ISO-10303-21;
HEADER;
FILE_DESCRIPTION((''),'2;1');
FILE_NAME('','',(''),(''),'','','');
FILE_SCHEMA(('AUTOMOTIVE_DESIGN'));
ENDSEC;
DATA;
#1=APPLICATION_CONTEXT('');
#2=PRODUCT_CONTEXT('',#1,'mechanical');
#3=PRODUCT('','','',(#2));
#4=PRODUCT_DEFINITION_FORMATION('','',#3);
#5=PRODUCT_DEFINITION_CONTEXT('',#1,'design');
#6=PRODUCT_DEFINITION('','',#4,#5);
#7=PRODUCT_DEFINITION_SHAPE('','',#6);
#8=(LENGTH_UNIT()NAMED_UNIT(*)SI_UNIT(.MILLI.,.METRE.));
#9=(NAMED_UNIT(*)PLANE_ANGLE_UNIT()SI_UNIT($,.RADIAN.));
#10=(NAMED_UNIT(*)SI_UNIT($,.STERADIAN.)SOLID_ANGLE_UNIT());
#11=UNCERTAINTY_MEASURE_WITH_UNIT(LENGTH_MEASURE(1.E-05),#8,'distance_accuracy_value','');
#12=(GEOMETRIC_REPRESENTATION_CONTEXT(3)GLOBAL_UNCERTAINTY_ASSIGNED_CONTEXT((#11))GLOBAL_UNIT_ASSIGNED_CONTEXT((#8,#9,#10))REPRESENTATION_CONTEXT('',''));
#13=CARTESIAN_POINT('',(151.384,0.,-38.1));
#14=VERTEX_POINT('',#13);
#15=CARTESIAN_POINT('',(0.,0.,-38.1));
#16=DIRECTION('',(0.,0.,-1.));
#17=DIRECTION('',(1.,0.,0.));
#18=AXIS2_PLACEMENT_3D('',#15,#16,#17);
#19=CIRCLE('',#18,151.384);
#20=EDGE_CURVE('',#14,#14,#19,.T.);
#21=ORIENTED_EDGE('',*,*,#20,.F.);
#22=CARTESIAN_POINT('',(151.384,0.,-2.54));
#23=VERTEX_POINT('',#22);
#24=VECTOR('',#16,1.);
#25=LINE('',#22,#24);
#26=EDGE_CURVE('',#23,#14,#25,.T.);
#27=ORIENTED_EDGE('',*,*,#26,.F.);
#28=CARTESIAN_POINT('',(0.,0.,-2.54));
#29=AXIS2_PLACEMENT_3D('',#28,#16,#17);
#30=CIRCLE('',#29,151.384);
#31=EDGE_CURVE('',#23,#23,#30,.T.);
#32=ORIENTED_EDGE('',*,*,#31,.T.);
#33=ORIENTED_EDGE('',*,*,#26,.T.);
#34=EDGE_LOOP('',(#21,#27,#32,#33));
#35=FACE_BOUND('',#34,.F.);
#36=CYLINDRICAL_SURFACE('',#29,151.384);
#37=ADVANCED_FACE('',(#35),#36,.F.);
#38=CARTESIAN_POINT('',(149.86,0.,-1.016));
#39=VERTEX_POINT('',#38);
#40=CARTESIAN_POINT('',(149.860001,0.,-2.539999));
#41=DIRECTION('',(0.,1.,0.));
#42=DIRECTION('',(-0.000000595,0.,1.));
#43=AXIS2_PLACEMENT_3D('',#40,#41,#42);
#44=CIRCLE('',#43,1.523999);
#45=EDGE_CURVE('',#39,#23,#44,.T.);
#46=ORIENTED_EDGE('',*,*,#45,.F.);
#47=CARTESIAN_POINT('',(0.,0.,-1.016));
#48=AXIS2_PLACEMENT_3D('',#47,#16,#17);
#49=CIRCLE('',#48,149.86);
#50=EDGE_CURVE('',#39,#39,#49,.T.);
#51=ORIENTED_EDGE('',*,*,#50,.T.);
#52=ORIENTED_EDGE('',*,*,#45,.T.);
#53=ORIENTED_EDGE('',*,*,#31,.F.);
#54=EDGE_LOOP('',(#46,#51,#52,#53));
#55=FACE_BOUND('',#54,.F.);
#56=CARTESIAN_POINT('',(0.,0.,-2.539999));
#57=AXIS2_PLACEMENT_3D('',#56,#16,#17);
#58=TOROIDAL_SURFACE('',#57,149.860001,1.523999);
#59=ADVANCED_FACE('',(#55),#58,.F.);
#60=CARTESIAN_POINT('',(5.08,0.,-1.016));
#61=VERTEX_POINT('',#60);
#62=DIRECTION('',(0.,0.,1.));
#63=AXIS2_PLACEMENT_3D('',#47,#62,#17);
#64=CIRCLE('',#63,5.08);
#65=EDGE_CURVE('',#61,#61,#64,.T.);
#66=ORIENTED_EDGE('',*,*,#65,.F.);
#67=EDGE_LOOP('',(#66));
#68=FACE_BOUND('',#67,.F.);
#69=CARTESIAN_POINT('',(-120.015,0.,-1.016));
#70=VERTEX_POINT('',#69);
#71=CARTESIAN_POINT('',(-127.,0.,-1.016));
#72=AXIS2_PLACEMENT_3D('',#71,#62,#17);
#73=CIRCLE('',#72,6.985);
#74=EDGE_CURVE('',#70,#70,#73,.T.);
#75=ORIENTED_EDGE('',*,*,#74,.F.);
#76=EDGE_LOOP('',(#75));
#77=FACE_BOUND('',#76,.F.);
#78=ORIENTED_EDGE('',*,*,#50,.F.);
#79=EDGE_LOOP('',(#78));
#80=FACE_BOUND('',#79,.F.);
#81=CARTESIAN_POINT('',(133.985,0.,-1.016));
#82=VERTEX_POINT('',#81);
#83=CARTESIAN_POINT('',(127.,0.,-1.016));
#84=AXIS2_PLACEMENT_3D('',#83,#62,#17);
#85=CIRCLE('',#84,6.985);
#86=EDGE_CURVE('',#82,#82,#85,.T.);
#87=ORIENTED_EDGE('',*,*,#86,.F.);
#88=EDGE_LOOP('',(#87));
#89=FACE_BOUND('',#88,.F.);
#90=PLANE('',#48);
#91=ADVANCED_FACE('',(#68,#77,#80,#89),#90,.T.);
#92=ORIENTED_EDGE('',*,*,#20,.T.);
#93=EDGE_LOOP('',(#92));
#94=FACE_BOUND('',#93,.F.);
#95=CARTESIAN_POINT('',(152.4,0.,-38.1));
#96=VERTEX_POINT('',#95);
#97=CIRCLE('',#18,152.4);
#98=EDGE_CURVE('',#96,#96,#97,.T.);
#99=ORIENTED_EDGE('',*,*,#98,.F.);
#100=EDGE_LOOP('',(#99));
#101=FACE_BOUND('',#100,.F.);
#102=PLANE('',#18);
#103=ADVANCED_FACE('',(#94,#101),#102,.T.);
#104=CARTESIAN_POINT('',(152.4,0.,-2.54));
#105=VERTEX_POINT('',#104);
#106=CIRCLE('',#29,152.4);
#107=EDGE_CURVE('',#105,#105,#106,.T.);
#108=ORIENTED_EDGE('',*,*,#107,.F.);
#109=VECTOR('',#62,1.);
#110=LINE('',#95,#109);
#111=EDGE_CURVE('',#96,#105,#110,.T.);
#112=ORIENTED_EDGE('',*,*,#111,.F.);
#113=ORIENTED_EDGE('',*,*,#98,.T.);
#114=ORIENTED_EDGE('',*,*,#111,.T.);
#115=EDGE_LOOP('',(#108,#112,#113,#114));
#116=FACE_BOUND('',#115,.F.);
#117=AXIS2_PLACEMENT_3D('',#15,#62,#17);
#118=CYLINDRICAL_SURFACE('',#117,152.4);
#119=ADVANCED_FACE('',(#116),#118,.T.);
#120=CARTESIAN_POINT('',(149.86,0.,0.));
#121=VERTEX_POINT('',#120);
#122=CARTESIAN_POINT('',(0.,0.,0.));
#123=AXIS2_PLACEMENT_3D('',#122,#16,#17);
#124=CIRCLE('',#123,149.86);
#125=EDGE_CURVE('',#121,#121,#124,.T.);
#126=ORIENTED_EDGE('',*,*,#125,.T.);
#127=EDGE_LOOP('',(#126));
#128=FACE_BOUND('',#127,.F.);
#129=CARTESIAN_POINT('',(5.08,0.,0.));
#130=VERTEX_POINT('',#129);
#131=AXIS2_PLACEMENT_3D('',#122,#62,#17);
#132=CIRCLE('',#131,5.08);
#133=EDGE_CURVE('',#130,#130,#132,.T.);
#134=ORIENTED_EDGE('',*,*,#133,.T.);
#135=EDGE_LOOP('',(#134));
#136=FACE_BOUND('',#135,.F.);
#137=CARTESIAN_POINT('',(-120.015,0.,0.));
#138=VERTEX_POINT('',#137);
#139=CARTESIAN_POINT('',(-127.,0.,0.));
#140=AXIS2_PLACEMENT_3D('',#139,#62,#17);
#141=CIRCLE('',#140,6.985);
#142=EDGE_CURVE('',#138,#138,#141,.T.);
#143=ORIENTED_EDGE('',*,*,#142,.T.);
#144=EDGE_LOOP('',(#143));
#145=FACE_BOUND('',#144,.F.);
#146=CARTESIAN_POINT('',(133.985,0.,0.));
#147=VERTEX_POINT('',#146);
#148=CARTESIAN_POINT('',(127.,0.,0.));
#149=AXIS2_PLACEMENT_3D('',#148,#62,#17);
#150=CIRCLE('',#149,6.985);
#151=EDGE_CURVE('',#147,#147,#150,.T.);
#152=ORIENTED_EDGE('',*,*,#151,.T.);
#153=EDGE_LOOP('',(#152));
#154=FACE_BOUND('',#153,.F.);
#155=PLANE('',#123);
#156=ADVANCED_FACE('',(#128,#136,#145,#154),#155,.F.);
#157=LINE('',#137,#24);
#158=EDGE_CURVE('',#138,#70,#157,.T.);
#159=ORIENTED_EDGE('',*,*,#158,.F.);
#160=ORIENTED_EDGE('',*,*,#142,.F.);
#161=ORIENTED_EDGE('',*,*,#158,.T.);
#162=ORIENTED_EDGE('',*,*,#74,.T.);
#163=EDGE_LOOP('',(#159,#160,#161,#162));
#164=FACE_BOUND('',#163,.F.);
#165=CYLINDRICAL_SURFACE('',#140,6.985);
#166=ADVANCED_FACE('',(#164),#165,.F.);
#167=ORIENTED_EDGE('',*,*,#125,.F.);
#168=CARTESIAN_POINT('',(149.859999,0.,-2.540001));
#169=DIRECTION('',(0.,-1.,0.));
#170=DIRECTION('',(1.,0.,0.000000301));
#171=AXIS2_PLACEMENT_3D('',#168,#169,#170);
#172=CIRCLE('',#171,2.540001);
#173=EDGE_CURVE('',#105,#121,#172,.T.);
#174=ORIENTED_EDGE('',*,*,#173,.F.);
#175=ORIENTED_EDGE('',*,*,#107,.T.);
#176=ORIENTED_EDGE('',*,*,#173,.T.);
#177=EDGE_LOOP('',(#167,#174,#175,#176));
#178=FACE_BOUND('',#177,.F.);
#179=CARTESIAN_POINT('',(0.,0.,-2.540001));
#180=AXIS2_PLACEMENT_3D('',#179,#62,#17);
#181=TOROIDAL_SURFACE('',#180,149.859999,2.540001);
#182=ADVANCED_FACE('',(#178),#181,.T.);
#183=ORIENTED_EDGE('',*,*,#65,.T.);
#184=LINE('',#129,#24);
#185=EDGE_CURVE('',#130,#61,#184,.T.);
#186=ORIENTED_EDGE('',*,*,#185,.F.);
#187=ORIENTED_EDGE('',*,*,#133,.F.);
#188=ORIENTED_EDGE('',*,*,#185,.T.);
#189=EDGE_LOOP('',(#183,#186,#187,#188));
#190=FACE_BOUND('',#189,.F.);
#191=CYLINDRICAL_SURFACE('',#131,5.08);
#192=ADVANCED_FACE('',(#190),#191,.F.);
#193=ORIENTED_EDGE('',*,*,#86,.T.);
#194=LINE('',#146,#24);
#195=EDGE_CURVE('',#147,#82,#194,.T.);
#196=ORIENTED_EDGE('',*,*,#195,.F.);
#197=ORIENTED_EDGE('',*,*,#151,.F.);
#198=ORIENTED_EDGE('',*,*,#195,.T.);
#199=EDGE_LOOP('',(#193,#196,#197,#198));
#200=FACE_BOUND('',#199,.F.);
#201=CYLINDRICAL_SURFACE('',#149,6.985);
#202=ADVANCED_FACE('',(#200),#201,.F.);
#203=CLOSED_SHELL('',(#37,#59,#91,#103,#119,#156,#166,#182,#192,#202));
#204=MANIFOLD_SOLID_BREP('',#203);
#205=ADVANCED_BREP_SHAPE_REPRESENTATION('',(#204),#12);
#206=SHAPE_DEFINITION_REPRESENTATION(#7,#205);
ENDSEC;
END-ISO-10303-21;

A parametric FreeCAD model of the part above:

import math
import FreeCAD as App
import Part
import Sketcher

V = App.Vector
Q = App.Units.Quantity

doc = App.newDocument("Part")
body = doc.addObject("PartDesign::Body", "Body")

# Sketch on XZ plane
sketch1 = body.newObject("Sketcher::SketchObject", "Sketch")
sketch1.AttachmentSupport = (doc.getObject("XZ_Plane"), [""])
sketch1.MapMode = "FlatFace"
sketch1.addGeometry([
    Part.LineSegment(V(149.9, 0, 0), V(0, 0, 0)),  # 0
    Part.LineSegment(V(0, 0, 0), V(0, -1, 0)),  # 1
    Part.LineSegment(V(0, -1, 0), V(149.9, -1, 0)),  # 2
    Part.ArcOfCircle(Part.Circle(V(149.9, -2.5, 0), V(0, 0, 1), 1.5), math.radians(0), math.radians(90)),  # 3
    Part.LineSegment(V(151.4, -2.5, 0), V(151.4, -38.1, 0)),  # 4
    Part.LineSegment(V(151.4, -38.1, 0), V(152.4, -38.1, 0)),  # 5
    Part.LineSegment(V(152.4, -38.1, 0), V(152.4, -2.5, 0)),  # 6
    Part.ArcOfCircle(Part.Circle(V(149.9, -2.5, 0), V(0, 0, 1), 2.5), math.radians(0), math.radians(90)),  # 7
], False)
sketch1.addConstraint([
    Sketcher.Constraint("Coincident", 0, 2, 1, 1),
    Sketcher.Constraint("Coincident", 1, 2, 2, 1),
    Sketcher.Constraint("Tangent", 2, 2, 3, 2),
    Sketcher.Constraint("Tangent", 3, 1, 4, 1),
    Sketcher.Constraint("Coincident", 4, 2, 5, 1),
    Sketcher.Constraint("Coincident", 5, 2, 6, 1),
    Sketcher.Constraint("Tangent", 6, 2, 7, 1),
    Sketcher.Constraint("Tangent", 7, 2, 0, 1),
    Sketcher.Constraint("Horizontal", 0),
    Sketcher.Constraint("Vertical", 1),
    Sketcher.Constraint("Horizontal", 2),
    Sketcher.Constraint("Vertical", 4),
    Sketcher.Constraint("Horizontal", 5),
    Sketcher.Constraint("Vertical", 6),
    Sketcher.Constraint("Coincident", 0, 2, -1, 1),
    Sketcher.Constraint("Coincident", 7, 3, 3, 3),
    Sketcher.Constraint("Radius", 7, Q("0.1 in")),
    Sketcher.Constraint("Radius", 3, Q("0.06 in")),
    Sketcher.Constraint("DistanceX", 0, 2, 0, 1, Q("5.9 in")),
    Sketcher.Constraint("DistanceY", 4, 2, 4, 1, Q("1.4 in")),
])
revolution = body.newObject("PartDesign::Revolution", "Revolution")
revolution.Profile = sketch1
revolution.ReferenceAxis = (sketch1, ["V_Axis"])
revolution.Angle = 360

# Sketch on XY plane
sketch2 = body.newObject("Sketcher::SketchObject", "Sketch001")
sketch2.AttachmentSupport = (doc.getObject("XY_Plane"), [""])
sketch2.MapMode = "FlatFace"
sketch2.addGeometry([
    Part.Circle(V(127, 0, 0), V(0, 0, 1), 7),
    Part.Circle(V(-127, 0, 0), V(0, 0, 1), 7),
    Part.Circle(V(0, 0, 0), V(0, 0, 1), 5),
], False)
sketch2.addConstraint([
    Sketcher.Constraint("Coincident", 2, 3, -1, 1),
    Sketcher.Constraint("Equal", 0, 1),
    Sketcher.Constraint("Symmetric", 0, 3, 1, 3, -1, 1),
    Sketcher.Constraint("PointOnObject", 0, 3, -1),
    Sketcher.Constraint("Diameter", 2, Q("0.4 in")),
    Sketcher.Constraint("Diameter", 0, Q("0.55 in")),
    Sketcher.Constraint("DistanceX", -1, 1, 0, 3, Q("5 in")),
])
pocket1 = body.newObject("PartDesign::Pocket", "Pocket")
pocket1.Profile = sketch2
pocket1.Type = "ThroughAll"

doc.recompute()
